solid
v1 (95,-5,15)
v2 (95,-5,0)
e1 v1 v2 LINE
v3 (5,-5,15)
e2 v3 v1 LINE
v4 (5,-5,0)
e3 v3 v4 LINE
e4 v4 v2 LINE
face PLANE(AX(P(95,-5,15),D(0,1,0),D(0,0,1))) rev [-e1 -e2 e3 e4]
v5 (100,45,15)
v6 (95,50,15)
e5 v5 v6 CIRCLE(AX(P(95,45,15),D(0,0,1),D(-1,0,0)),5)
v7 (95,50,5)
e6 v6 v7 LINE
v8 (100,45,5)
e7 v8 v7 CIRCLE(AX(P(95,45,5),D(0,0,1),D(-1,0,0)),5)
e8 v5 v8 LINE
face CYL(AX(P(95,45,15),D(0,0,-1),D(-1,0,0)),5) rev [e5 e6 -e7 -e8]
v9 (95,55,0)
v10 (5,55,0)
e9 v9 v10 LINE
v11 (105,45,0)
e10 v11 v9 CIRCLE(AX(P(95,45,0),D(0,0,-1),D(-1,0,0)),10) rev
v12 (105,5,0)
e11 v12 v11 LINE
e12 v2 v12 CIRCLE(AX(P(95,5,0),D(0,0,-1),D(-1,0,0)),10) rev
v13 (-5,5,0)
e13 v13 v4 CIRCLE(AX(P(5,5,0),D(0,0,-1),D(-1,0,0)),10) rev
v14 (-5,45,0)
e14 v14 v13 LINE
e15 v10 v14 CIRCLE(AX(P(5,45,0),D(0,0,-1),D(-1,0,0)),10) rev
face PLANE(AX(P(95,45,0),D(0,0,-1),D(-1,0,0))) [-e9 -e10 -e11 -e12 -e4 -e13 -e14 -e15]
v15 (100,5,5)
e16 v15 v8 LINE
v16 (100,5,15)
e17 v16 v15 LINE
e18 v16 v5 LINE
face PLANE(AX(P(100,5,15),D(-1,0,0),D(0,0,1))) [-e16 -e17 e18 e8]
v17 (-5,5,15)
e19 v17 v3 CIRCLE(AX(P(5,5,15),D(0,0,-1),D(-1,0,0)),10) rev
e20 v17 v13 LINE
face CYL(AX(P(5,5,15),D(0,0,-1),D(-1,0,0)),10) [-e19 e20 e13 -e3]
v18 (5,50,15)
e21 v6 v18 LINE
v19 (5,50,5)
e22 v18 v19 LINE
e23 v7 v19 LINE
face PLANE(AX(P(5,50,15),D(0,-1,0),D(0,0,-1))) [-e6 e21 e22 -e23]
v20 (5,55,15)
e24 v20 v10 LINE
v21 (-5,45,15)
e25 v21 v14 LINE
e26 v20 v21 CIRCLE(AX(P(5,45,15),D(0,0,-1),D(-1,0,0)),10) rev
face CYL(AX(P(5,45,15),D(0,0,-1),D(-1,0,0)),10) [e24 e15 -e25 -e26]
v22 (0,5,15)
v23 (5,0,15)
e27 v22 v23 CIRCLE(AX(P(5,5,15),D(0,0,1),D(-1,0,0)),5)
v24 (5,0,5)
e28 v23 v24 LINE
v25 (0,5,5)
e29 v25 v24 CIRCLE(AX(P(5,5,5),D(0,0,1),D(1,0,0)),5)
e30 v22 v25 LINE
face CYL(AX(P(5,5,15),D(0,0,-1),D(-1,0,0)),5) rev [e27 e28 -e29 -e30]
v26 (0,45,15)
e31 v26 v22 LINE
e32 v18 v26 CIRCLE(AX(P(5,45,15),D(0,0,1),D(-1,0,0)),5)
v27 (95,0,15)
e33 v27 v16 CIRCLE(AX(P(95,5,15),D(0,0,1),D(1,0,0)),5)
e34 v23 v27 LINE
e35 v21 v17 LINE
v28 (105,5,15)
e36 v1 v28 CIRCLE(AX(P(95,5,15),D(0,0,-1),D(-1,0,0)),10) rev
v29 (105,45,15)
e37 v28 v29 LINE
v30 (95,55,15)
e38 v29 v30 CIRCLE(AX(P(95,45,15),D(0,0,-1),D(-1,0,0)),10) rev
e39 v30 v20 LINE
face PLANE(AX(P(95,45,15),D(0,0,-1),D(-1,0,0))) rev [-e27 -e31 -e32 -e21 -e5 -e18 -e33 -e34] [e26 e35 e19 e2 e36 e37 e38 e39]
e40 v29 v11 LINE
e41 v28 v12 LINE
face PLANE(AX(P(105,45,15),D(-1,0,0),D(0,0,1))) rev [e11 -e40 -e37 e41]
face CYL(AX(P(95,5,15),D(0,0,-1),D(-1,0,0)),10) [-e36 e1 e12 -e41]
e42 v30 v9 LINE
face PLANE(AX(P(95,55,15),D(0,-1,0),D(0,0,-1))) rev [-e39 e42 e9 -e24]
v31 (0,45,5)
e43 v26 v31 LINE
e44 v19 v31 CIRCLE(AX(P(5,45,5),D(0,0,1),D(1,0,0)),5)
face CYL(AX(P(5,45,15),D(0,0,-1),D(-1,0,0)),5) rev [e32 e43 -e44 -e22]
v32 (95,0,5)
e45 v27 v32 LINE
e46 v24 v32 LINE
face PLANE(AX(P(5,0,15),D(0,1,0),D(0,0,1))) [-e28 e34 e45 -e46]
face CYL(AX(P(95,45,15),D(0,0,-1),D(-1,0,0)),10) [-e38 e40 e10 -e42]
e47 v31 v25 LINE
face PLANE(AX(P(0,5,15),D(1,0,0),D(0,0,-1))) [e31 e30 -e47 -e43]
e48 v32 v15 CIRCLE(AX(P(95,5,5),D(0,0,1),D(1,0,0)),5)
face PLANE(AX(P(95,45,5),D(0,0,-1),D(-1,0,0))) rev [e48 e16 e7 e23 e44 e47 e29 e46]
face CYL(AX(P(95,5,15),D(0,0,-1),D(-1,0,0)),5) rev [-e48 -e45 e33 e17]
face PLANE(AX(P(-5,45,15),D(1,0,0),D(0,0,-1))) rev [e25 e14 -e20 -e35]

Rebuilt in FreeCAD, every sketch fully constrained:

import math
import FreeCAD as App
import Part
import Sketcher

V = App.Vector
Q = App.Units.Quantity

doc = App.newDocument("Part")
body = doc.addObject("PartDesign::Body", "Body")

# Sketch on XY plane
sketch1 = body.newObject("Sketcher::SketchObject", "Sketch")
sketch1.AttachmentSupport = (doc.getObject("XY_Plane"), [""])
sketch1.MapMode = "FlatFace"
sketch1.addGeometry(Part.LineSegment(V(5, -5, 0), V(95, -5, 0)), False)
sketch1.addGeometry(Part.ArcOfCircle(Part.Circle(V(95, 5, 0), V(0, 0, 1), 10), math.radians(-90), math.radians(0)), False)
sketch1.addGeometry(Part.LineSegment(V(105, 5, 0), V(105, 45, 0)), False)
sketch1.addGeometry(Part.ArcOfCircle(Part.Circle(V(95, 45, 0), V(0, 0, 1), 10), math.radians(0), math.radians(90)), False)
sketch1.addGeometry(Part.LineSegment(V(95, 55, 0), V(5, 55, 0)), False)
sketch1.addGeometry(Part.ArcOfCircle(Part.Circle(V(5, 45, 0), V(0, 0, 1), 10), math.radians(90), math.radians(180)), False)
sketch1.addGeometry(Part.LineSegment(V(-5, 45, 0), V(-5, 5, 0)), False)
sketch1.addGeometry(Part.ArcOfCircle(Part.Circle(V(5, 5, 0), V(0, 0, 1), 10), math.radians(180), math.radians(270)), False)
sketch1.addGeometry(Part.LineSegment(V(95, 0, 0), V(5, 0, 0)), False)
sketch1.addGeometry(Part.ArcOfCircle(Part.Circle(V(5, 5, 0), V(0, 0, 1), 5), math.radians(180), math.radians(270)), False)
sketch1.addGeometry(Part.LineSegment(V(0, 5, 0), V(0, 45, 0)), False)
sketch1.addGeometry(Part.ArcOfCircle(Part.Circle(V(5, 45, 0), V(0, 0, 1), 5), math.radians(90), math.radians(180)), False)
sketch1.addGeometry(Part.LineSegment(V(5, 50, 0), V(95, 50, 0)), False)
sketch1.addGeometry(Part.ArcOfCircle(Part.Circle(V(95, 45, 0), V(0, 0, 1), 5), math.radians(0), math.radians(90)), False)
sketch1.addGeometry(Part.LineSegment(V(100, 45, 0), V(100, 5, 0)), False)
sketch1.addGeometry(Part.ArcOfCircle(Part.Circle(V(95, 5, 0), V(0, 0, 1), 5), math.radians(-90), math.radians(0)), False)
sketch1.addConstraint(Sketcher.Constraint("Tangent", 0, 2, 1, 1))
sketch1.addConstraint(Sketcher.Constraint("Tangent", 1, 2, 2, 1))
sketch1.addConstraint(Sketcher.Constraint("Tangent", 2, 2, 3, 1))
sketch1.addConstraint(Sketcher.Constraint("Tangent", 3, 2, 4, 1))
sketch1.addConstraint(Sketcher.Constraint("Tangent", 4, 2, 5, 1))
sketch1.addConstraint(Sketcher.Constraint("Tangent", 5, 2, 6, 1))
sketch1.addConstraint(Sketcher.Constraint("Tangent", 6, 2, 7, 1))
sketch1.addConstraint(Sketcher.Constraint("Tangent", 7, 2, 0, 1))
sketch1.addConstraint(Sketcher.Constraint("Tangent", 8, 2, 9, 2))
sketch1.addConstraint(Sketcher.Constraint("Tangent", 9, 1, 10, 1))
sketch1.addConstraint(Sketcher.Constraint("Tangent", 10, 2, 11, 2))
sketch1.addConstraint(Sketcher.Constraint("Tangent", 11, 1, 12, 1))
sketch1.addConstraint(Sketcher.Constraint("Tangent", 12, 2, 13, 2))
sketch1.addConstraint(Sketcher.Constraint("Tangent", 13, 1, 14, 1))
sketch1.addConstraint(Sketcher.Constraint("Tangent", 14, 2, 15, 2))
sketch1.addConstraint(Sketcher.Constraint("Tangent", 15, 1, 8, 1))
sketch1.addConstraint(Sketcher.Constraint("Horizontal", 0))
sketch1.addConstraint(Sketcher.Constraint("Vertical", 2))
sketch1.addConstraint(Sketcher.Constraint("Horizontal", 4))
sketch1.addConstraint(Sketcher.Constraint("Vertical", 6))
sketch1.addConstraint(Sketcher.Constraint("Horizontal", 8))
sketch1.addConstraint(Sketcher.Constraint("Vertical", 10))
sketch1.addConstraint(Sketcher.Constraint("Horizontal", 12))
sketch1.addConstraint(Sketcher.Constraint("Vertical", 14))
sketch1.addConstraint(Sketcher.Constraint("Coincident", 9, 3, 7, 3))
sketch1.addConstraint(Sketcher.Constraint("Coincident", 11, 3, 5, 3))
sketch1.addConstraint(Sketcher.Constraint("Coincident", 13, 3, 3, 3))
sketch1.addConstraint(Sketcher.Constraint("Equal", 1, 3))
sketch1.addConstraint(Sketcher.Constraint("Equal", 3, 5))
sketch1.addConstraint(Sketcher.Constraint("Equal", 5, 7))
sketch1.addConstraint(Sketcher.Constraint("Equal", 13, 15))
sketch1.addConstraint(Sketcher.Constraint("Symmetric", 6, 2, 7, 2, -1, 1))
sketch1.addConstraint(Sketcher.Constraint("PointOnObject", 8, 2, -1))
sketch1.addConstraint(Sketcher.Constraint("Radius", 1, Q("10 mm")))
sketch1.addConstraint(Sketcher.Constraint("DistanceX", 0, 1, 0, 2, Q("90 mm")))
sketch1.addConstraint(Sketcher.Constraint("DistanceY", 2, 1, 2, 2, Q("40 mm")))
pad1 = body.newObject("PartDesign::Pad", "Pad")
pad1.Profile = sketch1
pad1.Length = 15

# Sketch on XY plane
sketch2 = body.newObject("Sketcher::SketchObject", "Sketch001")
sketch2.AttachmentSupport = (doc.getObject("XY_Plane"), [""])
sketch2.MapMode = "FlatFace"
sketch2.addGeometry(Part.LineSegment(V(95, 50, 0), V(5, 50, 0)), False)
sketch2.addGeometry(Part.ArcOfCircle(Part.Circle(V(5, 45, 0), V(0, 0, 1), 5), math.radians(90), math.radians(180)), False)
sketch2.addGeometry(Part.LineSegment(V(0, 45, 0), V(0, 5, 0)), False)
sketch2.addGeometry(Part.ArcOfCircle(Part.Circle(V(5, 5, 0), V(0, 0, 1), 5), math.radians(180), math.radians(270)), False)
sketch2.addGeometry(Part.LineSegment(V(5, 0, 0), V(95, 0, 0)), False)
sketch2.addGeometry(Part.ArcOfCircle(Part.Circle(V(95, 5, 0), V(0, 0, 1), 5), math.radians(-90), math.radians(0)), False)
sketch2.addGeometry(Part.LineSegment(V(100, 5, 0), V(100, 45, 0)), False)
sketch2.addGeometry(Part.ArcOfCircle(Part.Circle(V(95, 45, 0), V(0, 0, 1), 5), math.radians(0), math.radians(90)), False)
sketch2.addConstraint(Sketcher.Constraint("Tangent", 0, 2, 1, 1))
sketch2.addConstraint(Sketcher.Constraint("Tangent", 1, 2, 2, 1))
sketch2.addConstraint(Sketcher.Constraint("Tangent", 2, 2, 3, 1))
sketch2.addConstraint(Sketcher.Constraint("Tangent", 3, 2, 4, 1))
sketch2.addConstraint(Sketcher.Constraint("Tangent", 4, 2, 5, 1))
sketch2.addConstraint(Sketcher.Constraint("Tangent", 5, 2, 6, 1))
sketch2.addConstraint(Sketcher.Constraint("Tangent", 6, 2, 7, 1))
sketch2.addConstraint(Sketcher.Constraint("Tangent", 7, 2, 0, 1))
sketch2.addConstraint(Sketcher.Constraint("Horizontal", 0))
sketch2.addConstraint(Sketcher.Constraint("Vertical", 2))
sketch2.addConstraint(Sketcher.Constraint("Horizontal", 4))
sketch2.addConstraint(Sketcher.Constraint("Vertical", 6))
sketch2.addConstraint(Sketcher.Constraint("Equal", 1, 3))
sketch2.addConstraint(Sketcher.Constraint("Equal", 3, 5))
sketch2.addConstraint(Sketcher.Constraint("Equal", 5, 7))
sketch2.addConstraint(Sketcher.Constraint("PointOnObject", 1, 2, -2))
sketch2.addConstraint(Sketcher.Constraint("PointOnObject", 3, 2, -1))
sketch2.addConstraint(Sketcher.Constraint("Radius", 1, Q("5 mm")))
sketch2.addConstraint(Sketcher.Constraint("DistanceX", 0, 2, 0, 1, Q("90 mm")))
sketch2.addConstraint(Sketcher.Constraint("DistanceY", 2, 2, 2, 1, Q("40 mm")))
pad2 = body.newObject("PartDesign::Pad", "Pad001")
pad2.Profile = sketch2
pad2.Length = 5

doc.recompute()
